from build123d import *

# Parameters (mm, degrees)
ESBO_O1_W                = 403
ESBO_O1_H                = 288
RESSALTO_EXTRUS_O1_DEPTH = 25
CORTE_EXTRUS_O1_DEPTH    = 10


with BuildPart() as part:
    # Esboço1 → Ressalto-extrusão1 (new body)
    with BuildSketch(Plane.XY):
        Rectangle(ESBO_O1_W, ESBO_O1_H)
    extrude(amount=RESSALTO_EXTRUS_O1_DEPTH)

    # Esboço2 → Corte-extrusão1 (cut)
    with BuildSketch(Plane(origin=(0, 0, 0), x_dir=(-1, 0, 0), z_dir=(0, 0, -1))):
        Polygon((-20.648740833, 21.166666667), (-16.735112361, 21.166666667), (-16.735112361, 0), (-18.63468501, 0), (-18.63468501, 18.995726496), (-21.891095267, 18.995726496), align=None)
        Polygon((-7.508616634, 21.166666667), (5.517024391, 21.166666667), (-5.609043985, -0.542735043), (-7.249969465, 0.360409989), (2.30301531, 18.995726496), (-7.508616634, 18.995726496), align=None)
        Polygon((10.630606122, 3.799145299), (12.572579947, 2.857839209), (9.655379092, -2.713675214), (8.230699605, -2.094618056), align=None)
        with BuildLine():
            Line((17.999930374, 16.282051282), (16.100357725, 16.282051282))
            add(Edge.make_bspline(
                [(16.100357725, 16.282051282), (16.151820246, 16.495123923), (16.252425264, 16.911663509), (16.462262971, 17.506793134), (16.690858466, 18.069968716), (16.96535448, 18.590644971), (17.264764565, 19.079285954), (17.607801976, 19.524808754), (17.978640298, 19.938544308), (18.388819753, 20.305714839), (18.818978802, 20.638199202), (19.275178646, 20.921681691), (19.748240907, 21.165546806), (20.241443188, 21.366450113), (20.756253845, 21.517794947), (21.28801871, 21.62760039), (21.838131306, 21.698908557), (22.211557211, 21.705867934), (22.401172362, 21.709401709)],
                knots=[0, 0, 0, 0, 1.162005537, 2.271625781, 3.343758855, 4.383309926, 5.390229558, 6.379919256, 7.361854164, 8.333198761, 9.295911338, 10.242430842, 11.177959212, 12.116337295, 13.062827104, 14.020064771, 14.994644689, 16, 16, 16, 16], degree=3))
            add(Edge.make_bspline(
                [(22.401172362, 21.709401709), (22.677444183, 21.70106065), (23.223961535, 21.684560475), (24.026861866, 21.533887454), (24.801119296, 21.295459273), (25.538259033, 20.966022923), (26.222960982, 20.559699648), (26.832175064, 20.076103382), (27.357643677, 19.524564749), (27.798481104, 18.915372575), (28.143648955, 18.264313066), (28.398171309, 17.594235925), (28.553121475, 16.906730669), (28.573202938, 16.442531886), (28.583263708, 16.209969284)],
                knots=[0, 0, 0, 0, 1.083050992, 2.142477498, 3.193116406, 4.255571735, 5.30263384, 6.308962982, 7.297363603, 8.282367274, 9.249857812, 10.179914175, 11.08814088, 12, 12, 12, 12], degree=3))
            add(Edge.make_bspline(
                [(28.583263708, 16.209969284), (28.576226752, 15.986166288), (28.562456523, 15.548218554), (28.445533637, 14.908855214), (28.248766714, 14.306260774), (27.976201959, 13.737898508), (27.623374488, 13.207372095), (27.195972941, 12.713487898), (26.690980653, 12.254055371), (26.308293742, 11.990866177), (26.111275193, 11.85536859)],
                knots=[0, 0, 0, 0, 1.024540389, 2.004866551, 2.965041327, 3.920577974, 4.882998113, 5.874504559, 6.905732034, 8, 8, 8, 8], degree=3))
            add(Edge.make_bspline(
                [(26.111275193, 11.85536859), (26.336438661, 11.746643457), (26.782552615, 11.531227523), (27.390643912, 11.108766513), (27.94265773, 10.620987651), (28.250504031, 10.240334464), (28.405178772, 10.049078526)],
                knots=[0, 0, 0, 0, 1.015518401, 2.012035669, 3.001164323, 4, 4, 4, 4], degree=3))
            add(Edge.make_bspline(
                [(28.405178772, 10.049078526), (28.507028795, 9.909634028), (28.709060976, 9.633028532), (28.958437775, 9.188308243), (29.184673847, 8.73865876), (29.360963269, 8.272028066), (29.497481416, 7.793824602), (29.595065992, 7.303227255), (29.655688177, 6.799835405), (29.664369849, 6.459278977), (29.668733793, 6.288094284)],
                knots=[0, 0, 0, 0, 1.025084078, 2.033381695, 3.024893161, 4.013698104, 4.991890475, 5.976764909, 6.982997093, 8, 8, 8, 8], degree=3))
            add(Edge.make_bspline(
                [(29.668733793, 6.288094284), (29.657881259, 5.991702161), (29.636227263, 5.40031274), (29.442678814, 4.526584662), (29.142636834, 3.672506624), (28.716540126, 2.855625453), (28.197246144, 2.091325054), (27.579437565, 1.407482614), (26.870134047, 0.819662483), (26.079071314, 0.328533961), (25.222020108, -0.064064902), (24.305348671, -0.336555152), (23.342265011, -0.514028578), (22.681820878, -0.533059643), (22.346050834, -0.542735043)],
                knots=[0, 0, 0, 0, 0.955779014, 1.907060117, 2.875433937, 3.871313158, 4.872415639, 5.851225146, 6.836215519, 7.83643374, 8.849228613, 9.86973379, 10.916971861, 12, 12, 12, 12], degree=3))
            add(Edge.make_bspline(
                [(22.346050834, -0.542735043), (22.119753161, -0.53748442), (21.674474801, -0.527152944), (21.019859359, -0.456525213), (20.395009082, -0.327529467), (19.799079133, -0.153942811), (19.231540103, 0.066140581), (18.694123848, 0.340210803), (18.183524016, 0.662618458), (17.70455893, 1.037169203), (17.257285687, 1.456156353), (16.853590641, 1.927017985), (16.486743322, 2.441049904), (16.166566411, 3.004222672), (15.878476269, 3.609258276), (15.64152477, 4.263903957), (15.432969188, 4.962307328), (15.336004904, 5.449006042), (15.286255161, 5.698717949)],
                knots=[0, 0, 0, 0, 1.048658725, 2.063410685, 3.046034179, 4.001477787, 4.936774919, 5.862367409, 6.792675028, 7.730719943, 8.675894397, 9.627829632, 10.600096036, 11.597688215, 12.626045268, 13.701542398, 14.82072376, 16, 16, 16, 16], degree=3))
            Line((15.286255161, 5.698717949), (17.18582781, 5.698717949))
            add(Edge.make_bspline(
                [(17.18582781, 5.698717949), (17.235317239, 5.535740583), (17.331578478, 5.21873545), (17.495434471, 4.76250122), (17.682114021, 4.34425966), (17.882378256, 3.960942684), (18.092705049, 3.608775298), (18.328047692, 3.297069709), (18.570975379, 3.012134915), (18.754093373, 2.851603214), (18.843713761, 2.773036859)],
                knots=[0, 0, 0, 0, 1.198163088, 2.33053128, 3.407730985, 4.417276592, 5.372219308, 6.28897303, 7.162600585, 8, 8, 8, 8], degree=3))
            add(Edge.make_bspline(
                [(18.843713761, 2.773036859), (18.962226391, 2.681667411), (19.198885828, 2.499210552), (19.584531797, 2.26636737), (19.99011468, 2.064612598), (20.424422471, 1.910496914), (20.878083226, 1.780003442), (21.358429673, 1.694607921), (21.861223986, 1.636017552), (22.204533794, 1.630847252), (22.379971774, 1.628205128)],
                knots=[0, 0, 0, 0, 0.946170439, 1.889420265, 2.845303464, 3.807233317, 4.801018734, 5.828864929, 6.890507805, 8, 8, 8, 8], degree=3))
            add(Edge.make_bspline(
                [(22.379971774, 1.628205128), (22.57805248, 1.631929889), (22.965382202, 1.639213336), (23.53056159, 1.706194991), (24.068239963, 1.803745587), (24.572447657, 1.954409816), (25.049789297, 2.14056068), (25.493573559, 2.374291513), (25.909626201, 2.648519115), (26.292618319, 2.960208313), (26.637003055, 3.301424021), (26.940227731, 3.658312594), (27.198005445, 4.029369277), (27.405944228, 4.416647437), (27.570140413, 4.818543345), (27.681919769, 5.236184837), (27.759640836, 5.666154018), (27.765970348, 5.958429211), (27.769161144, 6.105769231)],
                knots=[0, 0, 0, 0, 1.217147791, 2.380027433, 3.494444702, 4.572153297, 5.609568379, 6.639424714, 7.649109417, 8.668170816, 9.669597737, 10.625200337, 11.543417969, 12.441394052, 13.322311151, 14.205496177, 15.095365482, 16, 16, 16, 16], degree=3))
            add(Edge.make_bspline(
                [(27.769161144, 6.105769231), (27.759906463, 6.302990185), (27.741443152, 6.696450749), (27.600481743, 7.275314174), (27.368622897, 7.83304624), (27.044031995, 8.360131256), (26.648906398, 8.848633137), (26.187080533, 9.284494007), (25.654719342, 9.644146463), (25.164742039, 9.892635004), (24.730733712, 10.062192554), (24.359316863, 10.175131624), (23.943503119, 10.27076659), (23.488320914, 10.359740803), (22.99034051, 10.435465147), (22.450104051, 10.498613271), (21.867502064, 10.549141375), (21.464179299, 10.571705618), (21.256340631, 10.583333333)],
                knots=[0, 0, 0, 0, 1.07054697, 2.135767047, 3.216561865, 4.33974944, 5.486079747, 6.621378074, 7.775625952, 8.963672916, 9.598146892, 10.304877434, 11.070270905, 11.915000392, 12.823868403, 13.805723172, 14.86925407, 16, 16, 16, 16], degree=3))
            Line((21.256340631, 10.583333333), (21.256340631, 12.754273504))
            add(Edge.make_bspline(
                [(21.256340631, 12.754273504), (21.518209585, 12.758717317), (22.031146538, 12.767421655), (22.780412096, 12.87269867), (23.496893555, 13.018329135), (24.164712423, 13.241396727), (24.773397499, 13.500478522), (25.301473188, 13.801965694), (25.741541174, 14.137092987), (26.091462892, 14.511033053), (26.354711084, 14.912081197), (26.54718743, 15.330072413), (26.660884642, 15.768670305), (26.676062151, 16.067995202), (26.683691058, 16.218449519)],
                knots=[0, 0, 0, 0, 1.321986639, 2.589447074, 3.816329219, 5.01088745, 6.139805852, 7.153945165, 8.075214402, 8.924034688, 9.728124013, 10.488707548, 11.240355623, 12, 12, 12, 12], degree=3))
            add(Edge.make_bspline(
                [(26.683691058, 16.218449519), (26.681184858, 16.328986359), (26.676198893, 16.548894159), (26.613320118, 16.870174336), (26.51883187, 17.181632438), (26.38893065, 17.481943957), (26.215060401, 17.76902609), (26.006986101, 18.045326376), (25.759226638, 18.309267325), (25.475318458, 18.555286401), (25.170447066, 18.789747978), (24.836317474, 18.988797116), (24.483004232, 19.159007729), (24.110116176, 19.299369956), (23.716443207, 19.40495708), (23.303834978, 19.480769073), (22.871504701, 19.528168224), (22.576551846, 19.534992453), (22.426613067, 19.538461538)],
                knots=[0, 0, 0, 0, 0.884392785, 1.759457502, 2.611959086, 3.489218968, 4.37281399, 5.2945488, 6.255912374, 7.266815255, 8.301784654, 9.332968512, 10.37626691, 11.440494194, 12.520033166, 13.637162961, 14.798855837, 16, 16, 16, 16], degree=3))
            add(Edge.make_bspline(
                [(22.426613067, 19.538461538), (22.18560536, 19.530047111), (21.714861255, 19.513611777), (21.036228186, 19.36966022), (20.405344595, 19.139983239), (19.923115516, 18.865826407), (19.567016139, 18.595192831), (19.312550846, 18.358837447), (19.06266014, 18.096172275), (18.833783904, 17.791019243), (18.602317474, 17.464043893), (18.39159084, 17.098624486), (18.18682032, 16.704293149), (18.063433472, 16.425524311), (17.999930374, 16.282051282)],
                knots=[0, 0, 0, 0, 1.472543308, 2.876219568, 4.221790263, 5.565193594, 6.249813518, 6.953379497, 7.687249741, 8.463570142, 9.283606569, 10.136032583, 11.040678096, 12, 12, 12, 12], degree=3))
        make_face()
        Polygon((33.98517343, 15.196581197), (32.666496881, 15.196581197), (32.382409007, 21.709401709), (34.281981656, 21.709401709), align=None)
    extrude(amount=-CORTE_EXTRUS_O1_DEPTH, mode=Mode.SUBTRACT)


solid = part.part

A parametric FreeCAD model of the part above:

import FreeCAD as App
import Part
import Sketcher
Q = App.Units.Quantity

doc = App.newDocument("Part")
params = doc.addObject("Spreadsheet::Sheet", "Params")
for row, (alias, value) in enumerate([
    ("sketch1_width", "403 mm"),
    ("sketch1_height", "288 mm"),
    ("pad1_length", "25 mm"),
    ("pocket1_length", "10 mm"),
], start=1):
    params.set(f"A{row}", alias)
    params.set(f"B{row}", "=" + value)
    params.setAlias(f"B{row}", alias)

body = doc.addObject("PartDesign::Body", "Body")

# Sketch on XY plane
sketch1 = doc.addObject("Sketcher::SketchObject", "Sketch")
body.addObject(sketch1)
sketch1.AttachmentSupport = (doc.XY_Plane, [""])
sketch1.MapMode = "FlatFace"
sketch1.addGeometry([
    Part.LineSegment(App.Vector(-202, 144, 0), App.Vector(-202, -144, 0)),
    Part.LineSegment(App.Vector(-202, -144, 0), App.Vector(202, -144, 0)),
    Part.LineSegment(App.Vector(202, -144, 0), App.Vector(202, 144, 0)),
    Part.LineSegment(App.Vector(202, 144, 0), App.Vector(-202, 144, 0)),
], False)
sketch1.addConstraint([
    Sketcher.Constraint("Coincident", 0, 2, 1, 1),
    Sketcher.Constraint("Coincident", 1, 2, 2, 1),
    Sketcher.Constraint("Coincident", 2, 2, 3, 1),
    Sketcher.Constraint("Coincident", 3, 2, 0, 1),
    Sketcher.Constraint("Vertical", 0),
    Sketcher.Constraint("Horizontal", 1),
    Sketcher.Constraint("Vertical", 2),
    Sketcher.Constraint("Horizontal", 3),
    Sketcher.Constraint("Symmetric", 0, 2, 2, 2, -1, 1),
    Sketcher.Constraint("DistanceX", 1, 1, 1, 2, Q("403 mm")),
    Sketcher.Constraint("DistanceY", 0, 2, 0, 1, Q("288 mm")),
])
sketch1.setExpression("Constraints[9]", "Params.sketch1_width")
sketch1.setExpression("Constraints[10]", "Params.sketch1_height")
pad1 = doc.addObject("PartDesign::Pad", "Pad")
body.addObject(pad1)
pad1.Profile = sketch1
pad1.setExpression("Length", "Params.pad1_length")

# Sketch on XY plane
sketch2 = doc.addObject("Sketcher::SketchObject", "Sketch001")
body.addObject(sketch2)
sketch2.AttachmentSupport = (doc.XY_Plane, [""])
sketch2.MapMode = "FlatFace"
sketch2.addGeometry([
    Part.LineSegment(App.Vector(16.735112, 21.166667, 0), App.Vector(20.648741, 21.166667, 0)),  # 0
    Part.LineSegment(App.Vector(20.648741, 21.166667, 0), App.Vector(21.891095, 18.995726, 0)),  # 1
    Part.LineSegment(App.Vector(21.891095, 18.995726, 0), App.Vector(18.634685, 18.995726, 0)),  # 2
    Part.LineSegment(App.Vector(18.634685, 18.995726, 0), App.Vector(18.634685, 0, 0)),  # 3
    Part.LineSegment(App.Vector(18.634685, 0, 0), App.Vector(16.735112, 0, 0)),  # 4
    Part.LineSegment(App.Vector(16.735112, 0, 0), App.Vector(16.735112, 21.166667, 0)),  # 5
    Part.LineSegment(App.Vector(-5.517024, 21.166667, 0), App.Vector(7.508617, 21.166667, 0)),  # 6
    Part.LineSegment(App.Vector(7.508617, 21.166667, 0), App.Vector(7.508617, 18.995726, 0)),  # 7
    Part.LineSegment(App.Vector(7.508617, 18.995726, 0), App.Vector(-2.303015, 18.995726, 0)),  # 8
    Part.LineSegment(App.Vector(-2.303015, 18.995726, 0), App.Vector(7.249969, 0.36041, 0)),  # 9
    Part.LineSegment(App.Vector(7.249969, 0.36041, 0), App.Vector(5.609044, -0.542735, 0)),  # 10
    Part.LineSegment(App.Vector(5.609044, -0.542735, 0), App.Vector(-5.517024, 21.166667, 0)),  # 11
    Part.LineSegment(App.Vector(-12.57258, 2.857839, 0), App.Vector(-10.630606, 3.799145, 0)),  # 12
    Part.LineSegment(App.Vector(-10.630606, 3.799145, 0), App.Vector(-8.2307, -2.094618, 0)),  # 13
    Part.LineSegment(App.Vector(-8.2307, -2.094618, 0), App.Vector(-9.655379, -2.713675, 0)),  # 14
    Part.LineSegment(App.Vector(-9.655379, -2.713675, 0), App.Vector(-12.57258, 2.857839, 0)),  # 15
    Part.LineSegment(App.Vector(-16.100358, 16.282051, 0), App.Vector(-17.99993, 16.282051, 0)),  # 16
    Part.BSplineCurve([App.Vector(-22.426613, 19.538462, 0), App.Vector(-22.185605, 19.530047, 0), App.Vector(-21.714861, 19.513612, 0), App.Vector(-21.036228, 19.36966, 0), App.Vector(-20.405345, 19.139983, 0), App.Vector(-19.923116, 18.865826, 0), App.Vector(-19.567016, 18.595193, 0), App.Vector(-19.312551, 18.358837, 0), App.Vector(-19.06266, 18.096172, 0), App.Vector(-18.833784, 17.791019, 0), App.Vector(-18.602317, 17.464044, 0), App.Vector(-18.391591, 17.098624, 0), App.Vector(-18.18682, 16.704293, 0), App.Vector(-18.063433, 16.425524, 0), App.Vector(-17.99993, 16.282051, 0)], [4, 1, 1, 1, 1, 1, 1, 1, 1, 1, 1, 1, 4], [0, 1.472543308, 2.876219568, 4.221790263, 5.565193594, 6.249813518, 6.953379497, 7.687249741, 8.463570142, 9.283606569, 10.136032583, 11.040678096, 12], False, 3, [1, 1, 1, 1, 1, 1, 1, 1, 1, 1, 1, 1, 1, 1, 1], False),  # 17
    Part.BSplineCurve([App.Vector(-26.683691, 16.21845, 0), App.Vector(-26.681185, 16.328986, 0), App.Vector(-26.676199, 16.548894, 0), App.Vector(-26.61332, 16.870174, 0), App.Vector(-26.518832, 17.181632, 0), App.Vector(-26.388931, 17.481944, 0), App.Vector(-26.21506, 17.769026, 0), App.Vector(-26.006986, 18.045326, 0), App.Vector(-25.759227, 18.309267, 0), App.Vector(-25.475318, 18.555286, 0), App.Vector(-25.170447, 18.789748, 0), App.Vector(-24.836317, 18.988797, 0), App.Vector(-24.483004, 19.159008, 0), App.Vector(-24.110116, 19.29937, 0), App.Vector(-23.716443, 19.404957, 0), App.Vector(-23.303835, 19.480769, 0), App.Vector(-22.871505, 19.528168, 0), App.Vector(-22.576552, 19.534992, 0), App.Vector(-22.426613, 19.538462, 0)], [4, 1, 1, 1, 1, 1, 1, 1, 1, 1, 1, 1, 1, 1, 1, 1, 4], [0, 0.884392785, 1.759457502, 2.611959086, 3.489218968, 4.37281399, 5.2945488, 6.255912374, 7.266815255, 8.301784654, 9.332968512, 10.37626691, 11.440494194, 12.520033166, 13.637162961, 14.798855837, 16], False, 3, [1, 1, 1, 1, 1, 1, 1, 1, 1, 1, 1, 1, 1, 1, 1, 1, 1, 1, 1], False),  # 18
    Part.BSplineCurve([App.Vector(-21.256341, 12.754274, 0), App.Vector(-21.51821, 12.758717, 0), App.Vector(-22.031147, 12.767422, 0), App.Vector(-22.780412, 12.872699, 0), App.Vector(-23.496894, 13.018329, 0), App.Vector(-24.164712, 13.241397, 0), App.Vector(-24.773397, 13.500479, 0), App.Vector(-25.301473, 13.801966, 0), App.Vector(-25.741541, 14.137093, 0), App.Vector(-26.091463, 14.511033, 0), App.Vector(-26.354711, 14.912081, 0), App.Vector(-26.547187, 15.330072, 0), App.Vector(-26.660885, 15.76867, 0), App.Vector(-26.676062, 16.067995, 0), App.Vector(-26.683691, 16.21845, 0)], [4, 1, 1, 1, 1, 1, 1, 1, 1, 1, 1, 1, 4], [0, 1.321986639, 2.589447074, 3.816329219, 5.01088745, 6.139805852, 7.153945165, 8.075214402, 8.924034688, 9.728124013, 10.488707548, 11.240355623, 12], False, 3, [1, 1, 1, 1, 1, 1, 1, 1, 1, 1, 1, 1, 1, 1, 1], False),  # 19
    Part.LineSegment(App.Vector(-21.256341, 12.754274, 0), App.Vector(-21.256341, 10.583333, 0)),  # 20
    Part.BSplineCurve([App.Vector(-27.769161, 6.105769, 0), App.Vector(-27.759906, 6.30299, 0), App.Vector(-27.741443, 6.696451, 0), App.Vector(-27.600482, 7.275314, 0), App.Vector(-27.368623, 7.833046, 0), App.Vector(-27.044032, 8.360131, 0), App.Vector(-26.648906, 8.848633, 0), App.Vector(-26.187081, 9.284494, 0), App.Vector(-25.654719, 9.644146, 0), App.Vector(-25.164742, 9.892635, 0), App.Vector(-24.730734, 10.062193, 0), App.Vector(-24.359317, 10.175132, 0), App.Vector(-23.943503, 10.270767, 0), App.Vector(-23.488321, 10.359741, 0), App.Vector(-22.990341, 10.435465, 0), App.Vector(-22.450104, 10.498613, 0), App.Vector(-21.867502, 10.549141, 0), App.Vector(-21.464179, 10.571706, 0), App.Vector(-21.256341, 10.583333, 0)], [4, 1, 1, 1, 1, 1, 1, 1, 1, 1, 1, 1, 1, 1, 1, 1, 4], [0, 1.07054697, 2.135767047, 3.216561865, 4.33974944, 5.486079747, 6.621378074, 7.775625952, 8.963672916, 9.598146892, 10.304877434, 11.070270905, 11.915000392, 12.823868403, 13.805723172, 14.86925407, 16], False, 3, [1, 1, 1, 1, 1, 1, 1, 1, 1, 1, 1, 1, 1, 1, 1, 1, 1, 1, 1], False),  # 21
    Part.BSplineCurve([App.Vector(-22.379972, 1.628205, 0), App.Vector(-22.578052, 1.63193, 0), App.Vector(-22.965382, 1.639213, 0), App.Vector(-23.530562, 1.706195, 0), App.Vector(-24.06824, 1.803746, 0), App.Vector(-24.572448, 1.95441, 0), App.Vector(-25.049789, 2.140561, 0), App.Vector(-25.493574, 2.374292, 0), App.Vector(-25.909626, 2.648519, 0), App.Vector(-26.292618, 2.960208, 0), App.Vector(-26.637003, 3.301424, 0), App.Vector(-26.940228, 3.658313, 0), App.Vector(-27.198005, 4.029369, 0), App.Vector(-27.405944, 4.416647, 0), App.Vector(-27.57014, 4.818543, 0), App.Vector(-27.68192, 5.236185, 0), App.Vector(-27.759641, 5.666154, 0), App.Vector(-27.76597, 5.958429, 0), App.Vector(-27.769161, 6.105769, 0)], [4, 1, 1, 1, 1, 1, 1, 1, 1, 1, 1, 1, 1, 1, 1, 1, 4], [0, 1.217147791, 2.380027433, 3.494444702, 4.572153297, 5.609568379, 6.639424714, 7.649109417, 8.668170816, 9.669597737, 10.625200337, 11.543417969, 12.441394052, 13.322311151, 14.205496177, 15.095365482, 16], False, 3, [1, 1, 1, 1, 1, 1, 1, 1, 1, 1, 1, 1, 1, 1, 1, 1, 1, 1, 1], False),  # 22
    Part.BSplineCurve([App.Vector(-18.843714, 2.773037, 0), App.Vector(-18.962226, 2.681667, 0), App.Vector(-19.198886, 2.499211, 0), App.Vector(-19.584532, 2.266367, 0), App.Vector(-19.990115, 2.064613, 0), App.Vector(-20.424422, 1.910497, 0), App.Vector(-20.878083, 1.780003, 0), App.Vector(-21.35843, 1.694608, 0), App.Vector(-21.861224, 1.636018, 0), App.Vector(-22.204534, 1.630847, 0), App.Vector(-22.379972, 1.628205, 0)], [4, 1, 1, 1, 1, 1, 1, 1, 4], [0, 0.946170439, 1.889420265, 2.845303464, 3.807233317, 4.801018734, 5.828864929, 6.890507805, 8], False, 3, [1, 1, 1, 1, 1, 1, 1, 1, 1, 1, 1], False),  # 23
    Part.BSplineCurve([App.Vector(-17.185828, 5.698718, 0), App.Vector(-17.235317, 5.535741, 0), App.Vector(-17.331578, 5.218735, 0), App.Vector(-17.495434, 4.762501, 0), App.Vector(-17.682114, 4.34426, 0), App.Vector(-17.882378, 3.960943, 0), App.Vector(-18.092705, 3.608775, 0), App.Vector(-18.328048, 3.29707, 0), App.Vector(-18.570975, 3.012135, 0), App.Vector(-18.754093, 2.851603, 0), App.Vector(-18.843714, 2.773037, 0)], [4, 1, 1, 1, 1, 1, 1, 1, 4], [0, 1.198163088, 2.33053128, 3.407730985, 4.417276592, 5.372219308, 6.28897303, 7.162600585, 8], False, 3, [1, 1, 1, 1, 1, 1, 1, 1, 1, 1, 1], False),  # 24
    Part.LineSegment(App.Vector(-17.185828, 5.698718, 0), App.Vector(-15.286255, 5.698718, 0)),  # 25
    Part.BSplineCurve([App.Vector(-22.346051, -0.542735, 0), App.Vector(-22.119753, -0.537484, 0), App.Vector(-21.674475, -0.527153, 0), App.Vector(-21.019859, -0.456525, 0), App.Vector(-20.395009, -0.327529, 0), App.Vector(-19.799079, -0.153943, 0), App.Vector(-19.23154, 0.066141, 0), App.Vector(-18.694124, 0.340211, 0), App.Vector(-18.183524, 0.662618, 0), App.Vector(-17.704559, 1.037169, 0), App.Vector(-17.257286, 1.456156, 0), App.Vector(-16.853591, 1.927018, 0), App.Vector(-16.486743, 2.44105, 0), App.Vector(-16.166566, 3.004223, 0), App.Vector(-15.878476, 3.609258, 0), App.Vector(-15.641525, 4.263904, 0), App.Vector(-15.432969, 4.962307, 0), App.Vector(-15.336005, 5.449006, 0), App.Vector(-15.286255, 5.698718, 0)], [4, 1, 1, 1, 1, 1, 1, 1, 1, 1, 1, 1, 1, 1, 1, 1, 4], [0, 1.048658725, 2.063410685, 3.046034179, 4.001477787, 4.936774919, 5.862367409, 6.792675028, 7.730719943, 8.675894397, 9.627829632, 10.600096036, 11.597688215, 12.626045268, 13.701542398, 14.82072376, 16], False, 3, [1, 1, 1, 1, 1, 1, 1, 1, 1, 1, 1, 1, 1, 1, 1, 1, 1, 1, 1], False),  # 26
    Part.BSplineCurve([App.Vector(-29.668734, 6.288094, 0), App.Vector(-29.657881, 5.991702, 0), App.Vector(-29.636227, 5.400313, 0), App.Vector(-29.442679, 4.526585, 0), App.Vector(-29.142637, 3.672507, 0), App.Vector(-28.71654, 2.855625, 0), App.Vector(-28.197246, 2.091325, 0), App.Vector(-27.579438, 1.407483, 0), App.Vector(-26.870134, 0.819662, 0), App.Vector(-26.079071, 0.328534, 0), App.Vector(-25.22202, -0.064065, 0), App.Vector(-24.305349, -0.336555, 0), App.Vector(-23.342265, -0.514029, 0), App.Vector(-22.681821, -0.53306, 0), App.Vector(-22.346051, -0.542735, 0)], [4, 1, 1, 1, 1, 1, 1, 1, 1, 1, 1, 1, 4], [0, 0.955779014, 1.907060117, 2.875433937, 3.871313158, 4.872415639, 5.851225146, 6.836215519, 7.83643374, 8.849228613, 9.86973379, 10.916971861, 12], False, 3, [1, 1, 1, 1, 1, 1, 1, 1, 1, 1, 1, 1, 1, 1, 1], False),  # 27
    Part.BSplineCurve([App.Vector(-28.405179, 10.049079, 0), App.Vector(-28.507029, 9.909634, 0), App.Vector(-28.709061, 9.633029, 0), App.Vector(-28.958438, 9.188308, 0), App.Vector(-29.184674, 8.738659, 0), App.Vector(-29.360963, 8.272028, 0), App.Vector(-29.497481, 7.793825, 0), App.Vector(-29.595066, 7.303227, 0), App.Vector(-29.655688, 6.799835, 0), App.Vector(-29.66437, 6.459279, 0), App.Vector(-29.668734, 6.288094, 0)], [4, 1, 1, 1, 1, 1, 1, 1, 4], [0, 1.025084078, 2.033381695, 3.024893161, 4.013698104, 4.991890475, 5.976764909, 6.982997093, 8], False, 3, [1, 1, 1, 1, 1, 1, 1, 1, 1, 1, 1], False),  # 28
    Part.BSplineCurve([App.Vector(-26.111275, 11.855369, 0), App.Vector(-26.336439, 11.746643, 0), App.Vector(-26.782553, 11.531228, 0), App.Vector(-27.390644, 11.108767, 0), App.Vector(-27.942658, 10.620988, 0), App.Vector(-28.250504, 10.240334, 0), App.Vector(-28.405179, 10.049079, 0)], [4, 1, 1, 1, 4], [0, 1.015518401, 2.012035669, 3.001164323, 4], False, 3, [1, 1, 1, 1, 1, 1, 1], False),  # 29
    Part.BSplineCurve([App.Vector(-28.583264, 16.209969, 0), App.Vector(-28.576227, 15.986166, 0), App.Vector(-28.562457, 15.548219, 0), App.Vector(-28.445534, 14.908855, 0), App.Vector(-28.248767, 14.306261, 0), App.Vector(-27.976202, 13.737899, 0), App.Vector(-27.623374, 13.207372, 0), App.Vector(-27.195973, 12.713488, 0), App.Vector(-26.690981, 12.254055, 0), App.Vector(-26.308294, 11.990866, 0), App.Vector(-26.111275, 11.855369, 0)], [4, 1, 1, 1, 1, 1, 1, 1, 4], [0, 1.024540389, 2.004866551, 2.965041327, 3.920577974, 4.882998113, 5.874504559, 6.905732034, 8], False, 3, [1, 1, 1, 1, 1, 1, 1, 1, 1, 1, 1], False),  # 30
    Part.BSplineCurve([App.Vector(-22.401172, 21.709402, 0), App.Vector(-22.677444, 21.701061, 0), App.Vector(-23.223962, 21.68456, 0), App.Vector(-24.026862, 21.533887, 0), App.Vector(-24.801119, 21.295459, 0), App.Vector(-25.538259, 20.966023, 0), App.Vector(-26.222961, 20.5597, 0), App.Vector(-26.832175, 20.076103, 0), App.Vector(-27.357644, 19.524565, 0), App.Vector(-27.798481, 18.915373, 0), App.Vector(-28.143649, 18.264313, 0), App.Vector(-28.398171, 17.594236, 0), App.Vector(-28.553121, 16.906731, 0), App.Vector(-28.573203, 16.442532, 0), App.Vector(-28.583264, 16.209969, 0)], [4, 1, 1, 1, 1, 1, 1, 1, 1, 1, 1, 1, 4], [0, 1.083050992, 2.142477498, 3.193116406, 4.255571735, 5.30263384, 6.308962982, 7.297363603, 8.282367274, 9.249857812, 10.179914175, 11.08814088, 12], False, 3, [1, 1, 1, 1, 1, 1, 1, 1, 1, 1, 1, 1, 1, 1, 1], False),  # 31
    Part.BSplineCurve([App.Vector(-16.100358, 16.282051, 0), App.Vector(-16.15182, 16.495124, 0), App.Vector(-16.252425, 16.911664, 0), App.Vector(-16.462263, 17.506793, 0), App.Vector(-16.690858, 18.069969, 0), App.Vector(-16.965354, 18.590645, 0), App.Vector(-17.264765, 19.079286, 0), App.Vector(-17.607802, 19.524809, 0), App.Vector(-17.97864, 19.938544, 0), App.Vector(-18.38882, 20.305715, 0), App.Vector(-18.818979, 20.638199, 0), App.Vector(-19.275179, 20.921682, 0), App.Vector(-19.748241, 21.165547, 0), App.Vector(-20.241443, 21.36645, 0), App.Vector(-20.756254, 21.517795, 0), App.Vector(-21.288019, 21.6276, 0), App.Vector(-21.838131, 21.698909, 0), App.Vector(-22.211557, 21.705868, 0), App.Vector(-22.401172, 21.709402, 0)], [4, 1, 1, 1, 1, 1, 1, 1, 1, 1, 1, 1, 1, 1, 1, 1, 4], [0, 1.162005537, 2.271625781, 3.343758855, 4.383309926, 5.390229558, 6.379919256, 7.361854164, 8.333198761, 9.295911338, 10.242430842, 11.177959212, 12.116337295, 13.062827104, 14.020064771, 14.994644689, 16], False, 3, [1, 1, 1, 1, 1, 1, 1, 1, 1, 1, 1, 1, 1, 1, 1, 1, 1, 1, 1], False),  # 32
    Part.LineSegment(App.Vector(-32.666497, 15.196581, 0), App.Vector(-33.985173, 15.196581, 0)),  # 33
    Part.LineSegment(App.Vector(-33.985173, 15.196581, 0), App.Vector(-34.281982, 21.709402, 0)),  # 34
    Part.LineSegment(App.Vector(-34.281982, 21.709402, 0), App.Vector(-32.382409, 21.709402, 0)),  # 35
    Part.LineSegment(App.Vector(-32.382409, 21.709402, 0), App.Vector(-32.666497, 15.196581, 0)),  # 36
], False)
sketch2.addConstraint([
    Sketcher.Constraint("Block", 17),
    Sketcher.Constraint("Block", 18),
    Sketcher.Constraint("Block", 19),
    Sketcher.Constraint("Block", 21),
    Sketcher.Constraint("Block", 22),
    Sketcher.Constraint("Block", 23),
    Sketcher.Constraint("Block", 24),
    Sketcher.Constraint("Block", 26),
    Sketcher.Constraint("Block", 27),
    Sketcher.Constraint("Block", 28),
    Sketcher.Constraint("Block", 29),
    Sketcher.Constraint("Block", 30),
    Sketcher.Constraint("Block", 31),
    Sketcher.Constraint("Block", 32),
    Sketcher.Constraint("Coincident", 0, 2, 1, 1),
    Sketcher.Constraint("Coincident", 1, 2, 2, 1),
    Sketcher.Constraint("Coincident", 2, 2, 3, 1),
    Sketcher.Constraint("Coincident", 3, 2, 4, 1),
    Sketcher.Constraint("Coincident", 4, 2, 5, 1),
    Sketcher.Constraint("Coincident", 5, 2, 0, 1),
    Sketcher.Constraint("Coincident", 6, 2, 7, 1),
    Sketcher.Constraint("Coincident", 7, 2, 8, 1),
    Sketcher.Constraint("Coincident", 8, 2, 9, 1),
    Sketcher.Constraint("Coincident", 9, 2, 10, 1),
    Sketcher.Constraint("Coincident", 10, 2, 11, 1),
    Sketcher.Constraint("Coincident", 11, 2, 6, 1),
    Sketcher.Constraint("Coincident", 12, 2, 13, 1),
    Sketcher.Constraint("Coincident", 13, 2, 14, 1),
    Sketcher.Constraint("Coincident", 14, 2, 15, 1),
    Sketcher.Constraint("Coincident", 15, 2, 12, 1),
    Sketcher.Constraint("Coincident", 16, 2, 17, 2),
    Sketcher.Constraint("Coincident", 19, 1, 20, 1),
    Sketcher.Constraint("Coincident", 20, 2, 21, 2),
    Sketcher.Constraint("Coincident", 24, 1, 25, 1),
    Sketcher.Constraint("Coincident", 25, 2, 26, 2),
    Sketcher.Constraint("Coincident", 32, 1, 16, 1),
    Sketcher.Constraint("Coincident", 33, 2, 34, 1),
    Sketcher.Constraint("Coincident", 34, 2, 35, 1),
    Sketcher.Constraint("Coincident", 35, 2, 36, 1),
    Sketcher.Constraint("Coincident", 36, 2, 33, 1),
    Sketcher.Constraint("Horizontal", 0),
    Sketcher.Constraint("Horizontal", 2),
    Sketcher.Constraint("Vertical", 3),
    Sketcher.Constraint("Horizontal", 4),
    Sketcher.Constraint("Vertical", 5),
    Sketcher.Constraint("Horizontal", 6),
    Sketcher.Constraint("Vertical", 7),
    Sketcher.Constraint("Horizontal", 8),
    Sketcher.Constraint("Horizontal", 33),
    Sketcher.Constraint("Horizontal", 35),
    Sketcher.Constraint("PointOnObject", 3, 2, -1),
    Sketcher.Constraint("DistanceX", 0, 1, 0, 2, Q("3.913628 mm")),
    Sketcher.Constraint("DistanceX", 2, 2, 2, 1, Q("3.25641 mm")),
    Sketcher.Constraint("DistanceX", 6, 1, 6, 2, Q("13.025641 mm")),
    Sketcher.Constraint("DistanceX", 8, 2, 8, 1, Q("9.811632 mm")),
    Sketcher.Constraint("DistanceY", 7, 2, 7, 1, Q("2.17094 mm")),
    Sketcher.Constraint("DistanceX", 13, 2, -1, 1, Q("8.2307 mm")),
    Sketcher.Constraint("DistanceY", -1, 1, 34, 2, Q("21.709402 mm")),
    Sketcher.Constraint("DistanceX", 8, 2, 2, 2, Q("20.9377 mm")),
    Sketcher.Constraint("DistanceY", 14, 2, 8, 2, Q("21.709402 mm")),
    Sketcher.Constraint("DistanceX", 15, 2, 14, 2, Q("2.917201 mm")),
    Sketcher.Constraint("DistanceX", 34, 2, 15, 2, Q("21.709402 mm")),
    Sketcher.Constraint("Distance", 34, Q("6.51958 mm")),
    Sketcher.Constraint("DistanceX", 4, 2, 4, 1, Q("1.899573 mm")),
    Sketcher.Constraint("DistanceX", 33, 2, 33, 1, Q("1.318677 mm")),
    Sketcher.Constraint("DistanceX", 35, 1, 35, 2, Q("1.899573 mm")),
    Sketcher.Constraint("DistanceY", 3, 2, 3, 1, Q("18.995726 mm")),
    Sketcher.Constraint("DistanceY", 5, 1, 5, 2, Q("21.166667 mm")),
    Sketcher.Constraint("DistanceX", -1, 1, 0, 2, Q("20.648741 mm")),
    Sketcher.Constraint("DistanceX", -1, 1, 9, 2, Q("7.249969 mm")),
    Sketcher.Constraint("DistanceY", -1, 1, 9, 2, Q("0.36041 mm")),
    Sketcher.Constraint("DistanceY", 13, 2, -1, 1, Q("2.094618 mm")),
    Sketcher.Constraint("DistanceX", 14, 2, -1, 1, Q("9.655379 mm")),
    Sketcher.Constraint("DistanceY", -1, 1, 15, 2, Q("2.857839 mm")),
    Sketcher.Constraint("DistanceY", -1, 1, 33, 2, Q("15.196581 mm")),
    Sketcher.Constraint("DistanceY", 2, 2, 6, 2, Q("2.17094 mm")),
    Sketcher.Constraint("DistanceX", 10, 2, 4, 2, Q("11.126068 mm")),
    Sketcher.Constraint("DistanceY", 10, 2, 7, 2, Q("19.538462 mm")),
    Sketcher.Constraint("DistanceX", 12, 2, 10, 2, Q("16.23965 mm")),
    Sketcher.Constraint("DistanceY", 10, 2, 12, 2, Q("4.34188 mm")),
])
pocket1 = doc.addObject("PartDesign::Pocket", "Pocket")
body.addObject(pocket1)
pocket1.Profile = sketch2
pocket1.setExpression("Length", "Params.pocket1_length")
pocket1.Reversed = True

doc.recompute()
